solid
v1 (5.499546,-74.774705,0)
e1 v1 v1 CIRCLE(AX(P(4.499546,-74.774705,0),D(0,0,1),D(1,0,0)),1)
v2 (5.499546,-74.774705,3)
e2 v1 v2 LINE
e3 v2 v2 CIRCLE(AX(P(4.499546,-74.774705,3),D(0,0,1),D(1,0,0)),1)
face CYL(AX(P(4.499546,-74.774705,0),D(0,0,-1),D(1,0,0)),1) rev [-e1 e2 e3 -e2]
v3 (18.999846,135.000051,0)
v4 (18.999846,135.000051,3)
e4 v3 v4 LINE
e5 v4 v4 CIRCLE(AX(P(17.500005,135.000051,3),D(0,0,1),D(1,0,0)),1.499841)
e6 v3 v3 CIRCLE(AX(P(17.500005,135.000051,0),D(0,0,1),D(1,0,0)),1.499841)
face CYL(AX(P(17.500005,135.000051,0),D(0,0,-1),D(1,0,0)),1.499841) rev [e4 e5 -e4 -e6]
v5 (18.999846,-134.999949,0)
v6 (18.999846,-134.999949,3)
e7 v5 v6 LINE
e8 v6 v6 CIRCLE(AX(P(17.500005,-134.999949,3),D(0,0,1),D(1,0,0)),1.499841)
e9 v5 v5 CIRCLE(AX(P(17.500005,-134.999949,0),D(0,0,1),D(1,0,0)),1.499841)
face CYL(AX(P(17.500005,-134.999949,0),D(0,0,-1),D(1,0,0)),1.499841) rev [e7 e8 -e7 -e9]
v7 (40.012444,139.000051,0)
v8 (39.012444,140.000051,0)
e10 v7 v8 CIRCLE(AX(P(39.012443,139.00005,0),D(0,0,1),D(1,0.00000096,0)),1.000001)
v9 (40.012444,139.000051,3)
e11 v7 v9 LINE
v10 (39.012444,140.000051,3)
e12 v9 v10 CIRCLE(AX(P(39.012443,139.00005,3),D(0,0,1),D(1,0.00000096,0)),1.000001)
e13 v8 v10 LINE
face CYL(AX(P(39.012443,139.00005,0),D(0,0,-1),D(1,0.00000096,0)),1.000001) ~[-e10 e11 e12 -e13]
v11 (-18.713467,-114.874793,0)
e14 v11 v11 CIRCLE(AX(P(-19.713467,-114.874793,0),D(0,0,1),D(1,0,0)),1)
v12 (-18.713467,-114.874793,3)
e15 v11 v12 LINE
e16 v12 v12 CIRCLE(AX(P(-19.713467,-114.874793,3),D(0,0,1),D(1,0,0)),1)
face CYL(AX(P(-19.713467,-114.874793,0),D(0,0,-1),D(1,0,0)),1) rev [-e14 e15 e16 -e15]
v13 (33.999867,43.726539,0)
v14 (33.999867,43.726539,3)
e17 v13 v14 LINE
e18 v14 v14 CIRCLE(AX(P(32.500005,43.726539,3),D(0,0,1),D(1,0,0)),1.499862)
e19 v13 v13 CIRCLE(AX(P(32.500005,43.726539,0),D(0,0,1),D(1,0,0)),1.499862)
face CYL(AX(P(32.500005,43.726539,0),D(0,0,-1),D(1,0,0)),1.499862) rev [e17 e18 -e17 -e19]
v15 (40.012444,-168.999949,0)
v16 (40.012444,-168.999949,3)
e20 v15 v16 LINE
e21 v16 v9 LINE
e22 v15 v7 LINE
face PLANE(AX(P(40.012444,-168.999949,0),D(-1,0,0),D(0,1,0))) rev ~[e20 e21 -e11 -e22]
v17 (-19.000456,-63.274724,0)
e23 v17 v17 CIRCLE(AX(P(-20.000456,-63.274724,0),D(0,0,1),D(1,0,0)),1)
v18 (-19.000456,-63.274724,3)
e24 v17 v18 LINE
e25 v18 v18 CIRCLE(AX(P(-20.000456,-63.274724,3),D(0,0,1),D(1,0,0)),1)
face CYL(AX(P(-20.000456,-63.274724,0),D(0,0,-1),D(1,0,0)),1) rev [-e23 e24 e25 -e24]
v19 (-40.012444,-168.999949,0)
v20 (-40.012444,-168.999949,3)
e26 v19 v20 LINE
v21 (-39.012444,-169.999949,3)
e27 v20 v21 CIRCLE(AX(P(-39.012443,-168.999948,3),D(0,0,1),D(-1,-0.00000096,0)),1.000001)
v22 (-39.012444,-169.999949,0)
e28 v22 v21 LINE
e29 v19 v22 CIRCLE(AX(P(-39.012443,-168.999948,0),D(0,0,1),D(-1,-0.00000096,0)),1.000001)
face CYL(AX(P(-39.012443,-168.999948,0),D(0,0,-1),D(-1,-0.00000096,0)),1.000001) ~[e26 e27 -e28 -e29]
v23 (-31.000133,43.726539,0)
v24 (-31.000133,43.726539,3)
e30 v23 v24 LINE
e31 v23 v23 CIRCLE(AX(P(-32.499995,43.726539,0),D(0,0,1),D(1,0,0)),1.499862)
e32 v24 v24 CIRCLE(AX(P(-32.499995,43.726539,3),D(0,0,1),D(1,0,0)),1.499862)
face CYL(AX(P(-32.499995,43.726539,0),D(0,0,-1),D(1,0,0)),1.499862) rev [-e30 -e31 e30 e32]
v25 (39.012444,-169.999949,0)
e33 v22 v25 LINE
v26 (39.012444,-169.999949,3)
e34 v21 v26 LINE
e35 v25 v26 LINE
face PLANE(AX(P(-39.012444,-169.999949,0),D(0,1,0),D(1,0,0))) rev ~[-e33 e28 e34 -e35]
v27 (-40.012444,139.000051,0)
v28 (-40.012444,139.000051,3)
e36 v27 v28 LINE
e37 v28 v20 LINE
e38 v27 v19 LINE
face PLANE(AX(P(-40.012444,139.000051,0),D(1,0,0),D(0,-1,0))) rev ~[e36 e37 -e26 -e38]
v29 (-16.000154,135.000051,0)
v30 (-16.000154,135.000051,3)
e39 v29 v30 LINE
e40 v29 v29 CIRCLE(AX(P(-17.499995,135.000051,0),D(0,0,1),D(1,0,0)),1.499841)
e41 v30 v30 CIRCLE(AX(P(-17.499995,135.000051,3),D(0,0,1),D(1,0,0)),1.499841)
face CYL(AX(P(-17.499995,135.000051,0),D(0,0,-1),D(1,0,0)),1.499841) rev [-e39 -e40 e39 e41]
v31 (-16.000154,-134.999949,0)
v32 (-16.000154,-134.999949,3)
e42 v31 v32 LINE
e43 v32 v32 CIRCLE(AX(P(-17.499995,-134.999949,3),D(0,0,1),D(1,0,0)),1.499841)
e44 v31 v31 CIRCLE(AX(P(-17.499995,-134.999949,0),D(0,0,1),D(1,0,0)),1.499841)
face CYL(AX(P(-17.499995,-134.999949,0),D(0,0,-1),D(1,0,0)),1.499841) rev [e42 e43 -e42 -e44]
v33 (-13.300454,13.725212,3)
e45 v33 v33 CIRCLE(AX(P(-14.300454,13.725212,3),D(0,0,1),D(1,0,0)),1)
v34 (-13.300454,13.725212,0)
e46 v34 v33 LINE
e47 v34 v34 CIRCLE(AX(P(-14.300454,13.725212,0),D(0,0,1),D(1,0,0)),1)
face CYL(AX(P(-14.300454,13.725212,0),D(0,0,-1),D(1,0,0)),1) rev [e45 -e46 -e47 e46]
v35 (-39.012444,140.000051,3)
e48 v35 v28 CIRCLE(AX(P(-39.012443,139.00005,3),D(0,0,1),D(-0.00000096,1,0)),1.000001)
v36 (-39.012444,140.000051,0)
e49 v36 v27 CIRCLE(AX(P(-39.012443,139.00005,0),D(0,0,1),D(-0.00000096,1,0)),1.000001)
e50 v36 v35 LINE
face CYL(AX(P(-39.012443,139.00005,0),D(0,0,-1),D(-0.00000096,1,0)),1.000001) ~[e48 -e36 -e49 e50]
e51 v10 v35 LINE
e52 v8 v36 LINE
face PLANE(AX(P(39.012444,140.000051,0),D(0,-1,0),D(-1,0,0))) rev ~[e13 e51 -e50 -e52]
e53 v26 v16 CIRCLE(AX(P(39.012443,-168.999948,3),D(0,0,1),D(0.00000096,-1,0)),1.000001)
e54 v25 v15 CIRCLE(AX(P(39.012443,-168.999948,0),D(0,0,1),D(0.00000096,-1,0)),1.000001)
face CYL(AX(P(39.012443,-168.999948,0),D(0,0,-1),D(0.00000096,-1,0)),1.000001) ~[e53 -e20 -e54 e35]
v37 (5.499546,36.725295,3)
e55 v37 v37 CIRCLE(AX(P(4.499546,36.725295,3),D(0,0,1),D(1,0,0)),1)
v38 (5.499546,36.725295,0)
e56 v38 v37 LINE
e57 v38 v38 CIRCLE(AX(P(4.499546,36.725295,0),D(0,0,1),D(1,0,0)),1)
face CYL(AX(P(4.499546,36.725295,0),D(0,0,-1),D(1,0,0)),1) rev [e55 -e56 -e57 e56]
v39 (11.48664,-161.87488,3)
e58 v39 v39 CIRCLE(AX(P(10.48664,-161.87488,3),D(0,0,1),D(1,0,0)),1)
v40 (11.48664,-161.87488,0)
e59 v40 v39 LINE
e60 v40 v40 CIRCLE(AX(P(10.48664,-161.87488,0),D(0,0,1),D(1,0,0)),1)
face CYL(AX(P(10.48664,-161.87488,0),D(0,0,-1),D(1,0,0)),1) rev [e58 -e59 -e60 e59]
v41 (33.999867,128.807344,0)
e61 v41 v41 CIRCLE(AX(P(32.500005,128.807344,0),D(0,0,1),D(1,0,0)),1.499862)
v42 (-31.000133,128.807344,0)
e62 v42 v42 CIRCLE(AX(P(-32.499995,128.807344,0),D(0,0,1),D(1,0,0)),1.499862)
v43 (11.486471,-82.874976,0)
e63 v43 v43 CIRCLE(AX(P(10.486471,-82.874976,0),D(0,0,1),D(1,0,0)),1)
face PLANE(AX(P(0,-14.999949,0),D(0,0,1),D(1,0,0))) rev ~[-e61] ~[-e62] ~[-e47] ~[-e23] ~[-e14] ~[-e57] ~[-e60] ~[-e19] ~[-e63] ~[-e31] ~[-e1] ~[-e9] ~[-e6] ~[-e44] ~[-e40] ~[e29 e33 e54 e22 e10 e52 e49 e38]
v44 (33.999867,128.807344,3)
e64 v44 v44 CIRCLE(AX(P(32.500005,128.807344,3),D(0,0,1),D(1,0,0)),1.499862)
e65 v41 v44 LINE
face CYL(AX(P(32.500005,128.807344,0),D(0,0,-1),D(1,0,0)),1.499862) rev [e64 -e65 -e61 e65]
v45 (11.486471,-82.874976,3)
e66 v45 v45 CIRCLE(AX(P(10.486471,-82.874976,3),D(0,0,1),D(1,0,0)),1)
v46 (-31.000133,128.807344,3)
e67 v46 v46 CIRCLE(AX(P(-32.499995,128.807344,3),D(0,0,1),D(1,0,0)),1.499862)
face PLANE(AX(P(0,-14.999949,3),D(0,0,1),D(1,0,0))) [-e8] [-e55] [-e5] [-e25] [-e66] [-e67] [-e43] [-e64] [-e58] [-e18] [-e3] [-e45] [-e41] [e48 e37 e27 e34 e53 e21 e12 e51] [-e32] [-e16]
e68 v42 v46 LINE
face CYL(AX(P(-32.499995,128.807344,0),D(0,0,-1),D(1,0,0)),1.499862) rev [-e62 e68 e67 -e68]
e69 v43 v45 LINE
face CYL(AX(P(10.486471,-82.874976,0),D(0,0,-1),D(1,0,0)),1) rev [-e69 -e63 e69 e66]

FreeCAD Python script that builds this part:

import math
import FreeCAD as App
import Part
import Sketcher
from FreeCAD import Vector

doc = App.newDocument("Part")
params = doc.addObject("Spreadsheet::Sheet", "Params")
for row, (alias, value) in enumerate([
    ("sketch1_diameter", "2 mm"),
    ("sketch1_height", "308 mm"),
    ("pad1_length", "3 mm"),
], start=1):
    params.set(f"A{row}", alias)
    params.set(f"B{row}", "=" + value)
    params.setAlias(f"B{row}", alias)

body = doc.addObject("PartDesign::Body", "Body")

# Sketch on XY plane
sketch1 = doc.addObject("Sketcher::SketchObject", "Sketch")
body.addObject(sketch1)
sketch1.AttachmentSupport = (doc.XY_Plane, [""])
sketch1.MapMode = "FlatFace"
sketch1.addGeometry(Part.ArcOfCircle(Part.Circle(Vector(39.012443, 139.00005, 0), Vector(0, 0, 1), 1.000001), math.radians(0.000055), math.radians(89.999945)), False)
sketch1.addGeometry(Part.LineSegment(Vector(39.012444, 140.000051, 0), Vector(-39.012444, 140.000051, 0)), False)
sketch1.addGeometry(Part.ArcOfCircle(Part.Circle(Vector(-39.012443, 139.00005, 0), Vector(0, 0, 1), 1.000001), math.radians(90.000055), math.radians(179.999945)), False)
sketch1.addGeometry(Part.LineSegment(Vector(-40.012444, 139.000051, 0), Vector(-40.012444, -168.999949, 0)), False)
sketch1.addGeometry(Part.ArcOfCircle(Part.Circle(Vector(-39.012443, -168.999948, 0), Vector(0, 0, 1), 1.000001), math.radians(-179.999945), math.radians(-90.000055)), False)
sketch1.addGeometry(Part.LineSegment(Vector(-39.012444, -169.999949, 0), Vector(39.012444, -169.999949, 0)), False)
sketch1.addGeometry(Part.ArcOfCircle(Part.Circle(Vector(39.012443, -168.999948, 0), Vector(0, 0, 1), 1.000001), math.radians(-89.999945), math.radians(-0.000055)), False)
sketch1.addGeometry(Part.LineSegment(Vector(40.012444, -168.999949, 0), Vector(40.012444, 139.000051, 0)), False)
sketch1.addGeometry(Part.Circle(Vector(-17.499995, -134.999949, 0), Vector(0, 0, 1), 1.499841), False)
sketch1.addGeometry(Part.Circle(Vector(-19.713467, -114.874793, 0), Vector(0, 0, 1), 1), False)
sketch1.addGeometry(Part.Circle(Vector(-20.000456, -63.274724, 0), Vector(0, 0, 1), 1), False)
sketch1.addGeometry(Part.Circle(Vector(10.48664, -161.87488, 0), Vector(0, 0, 1), 1), False)
sketch1.addGeometry(Part.Circle(Vector(17.500005, -134.999949, 0), Vector(0, 0, 1), 1.499841), False)
sketch1.addGeometry(Part.Circle(Vector(4.499546, -74.774705, 0), Vector(0, 0, 1), 1), False)
sketch1.addGeometry(Part.Circle(Vector(10.486471, -82.874976, 0), Vector(0, 0, 1), 1), False)
sketch1.addGeometry(Part.Circle(Vector(-32.499995, 43.726539, 0), Vector(0, 0, 1), 1.499862), False)
sketch1.addGeometry(Part.Circle(Vector(-14.300454, 13.725212, 0), Vector(0, 0, 1), 1), False)
sketch1.addGeometry(Part.Circle(Vector(-32.499995, 128.807344, 0), Vector(0, 0, 1), 1.499862), False)
sketch1.addGeometry(Part.Circle(Vector(-17.499995, 135.000051, 0), Vector(0, 0, 1), 1.499841), False)
sketch1.addGeometry(Part.Circle(Vector(4.499546, 36.725295, 0), Vector(0, 0, 1), 1), False)
sketch1.addGeometry(Part.Circle(Vector(32.500005, 43.726539, 0), Vector(0, 0, 1), 1.499862), False)
sketch1.addGeometry(Part.Circle(Vector(17.500005, 135.000051, 0), Vector(0, 0, 1), 1.499841), False)
sketch1.addGeometry(Part.Circle(Vector(32.500005, 128.807344, 0), Vector(0, 0, 1), 1.499862), False)
sketch1.addConstraint(Sketcher.Constraint("Tangent", 0, 2, 1, 1))
sketch1.addConstraint(Sketcher.Constraint("Tangent", 1, 2, 2, 1))
sketch1.addConstraint(Sketcher.Constraint("Tangent", 2, 2, 3, 1))
sketch1.addConstraint(Sketcher.Constraint("Tangent", 3, 2, 4, 1))
sketch1.addConstraint(Sketcher.Constraint("Tangent", 4, 2, 5, 1))
sketch1.addConstraint(Sketcher.Constraint("Tangent", 5, 2, 6, 1))
sketch1.addConstraint(Sketcher.Constraint("Tangent", 6, 2, 7, 1))
sketch1.addConstraint(Sketcher.Constraint("Tangent", 7, 2, 0, 1))
sketch1.addConstraint(Sketcher.Constraint("Horizontal", 1))
sketch1.addConstraint(Sketcher.Constraint("Vertical", 3))
sketch1.addConstraint(Sketcher.Constraint("Horizontal", 5))
sketch1.addConstraint(Sketcher.Constraint("Vertical", 7))
sketch1.addConstraint(Sketcher.Constraint("Equal", 0, 2))
sketch1.addConstraint(Sketcher.Constraint("Equal", 2, 4))
sketch1.addConstraint(Sketcher.Constraint("Equal", 4, 6))
sketch1.addConstraint(Sketcher.Constraint("Equal", 6, 9))
sketch1.addConstraint(Sketcher.Constraint("Equal", 9, 10))
sketch1.addConstraint(Sketcher.Constraint("Equal", 10, 11))
sketch1.addConstraint(Sketcher.Constraint("Equal", 8, 12))
sketch1.addConstraint(Sketcher.Constraint("Equal", 11, 13))
sketch1.addConstraint(Sketcher.Constraint("Equal", 13, 14))
sketch1.addConstraint(Sketcher.Constraint("Equal", 14, 16))
sketch1.addConstraint(Sketcher.Constraint("Equal", 15, 17))
sketch1.addConstraint(Sketcher.Constraint("Equal", 12, 18))
sketch1.addConstraint(Sketcher.Constraint("Equal", 16, 19))
sketch1.addConstraint(Sketcher.Constraint("Equal", 17, 20))
sketch1.addConstraint(Sketcher.Constraint("Equal", 18, 21))
sketch1.addConstraint(Sketcher.Constraint("Equal", 20, 22))
sketch1.addConstraint(Sketcher.Constraint("Horizontal", 8, 3, 12, 3))
sketch1.addConstraint(Sketcher.Constraint("Horizontal", 15, 3, 20, 3))
sketch1.addConstraint(Sketcher.Constraint("Horizontal", 18, 3, 21, 3))
sketch1.addConstraint(Sketcher.Constraint("Horizontal", 17, 3, 22, 3))
sketch1.addConstraint(Sketcher.Constraint("Vertical", 15, 3, 17, 3))
sketch1.addConstraint(Sketcher.Constraint("Vertical", 8, 3, 18, 3))
sketch1.addConstraint(Sketcher.Constraint("Vertical", 13, 3, 19, 3))
sketch1.addConstraint(Sketcher.Constraint("Vertical", 12, 3, 21, 3))
sketch1.addConstraint(Sketcher.Constraint("Vertical", 20, 3, 22, 3))
sketch1.addConstraint(Sketcher.Constraint("Diameter", 9, 2.0))
sketch1.addConstraint(Sketcher.Constraint("DistanceY", 3, 2, 3, 1, 308.0))
sketch1.addConstraint(Sketcher.Constraint("DistanceY", 4, 3, 8, 3, 33.999999))
sketch1.addConstraint(Sketcher.Constraint("DistanceX", 8, 3, 12, 3, 35.0))
sketch1.addConstraint(Sketcher.Constraint("DistanceX", 17, 3, 18, 3, 15.0))
sketch1.addConstraint(Sketcher.Constraint("DistanceY", 18, 3, 2, 3, 3.999999))
sketch1.addConstraint(Sketcher.Constraint("DistanceX", 15, 3, 20, 3, 65.0))
sketch1.addConstraint(Sketcher.Constraint("DistanceX", 10, 3, 13, 3, 24.500002))
sketch1.addConstraint(Sketcher.Constraint("DistanceX", 10, 3, 16, 3, 5.700002))
sketch1.addConstraint(Sketcher.Constraint("Diameter", 8, 2.999682))
sketch1.addConstraint(Sketcher.Constraint("Diameter", 15, 2.999724))
sketch1.addConstraint(Sketcher.Constraint("DistanceX", 1, 2, 1, 1, 78.024888))
sketch1.addConstraint(Sketcher.Constraint("DistanceX", 10, 3, 6, 3, 59.012899))
sketch1.addConstraint(Sketcher.Constraint("DistanceY", -1, 1, 0, 3, 139.00005))
sketch1.addConstraint(Sketcher.Constraint("DistanceX", -1, 1, 11, 3, 10.48664))
sketch1.addConstraint(Sketcher.Constraint("DistanceY", 11, 3, -1, 1, 161.87488))
sketch1.addConstraint(Sketcher.Constraint("DistanceX", -1, 1, 14, 3, 10.486471))
sketch1.addConstraint(Sketcher.Constraint("DistanceY", -1, 1, 15, 3, 43.726539))
sketch1.addConstraint(Sketcher.Constraint("DistanceX", 4, 3, 8, 3, 21.512448))
sketch1.addConstraint(Sketcher.Constraint("DistanceX", 9, 3, 6, 3, 58.72591))
sketch1.addConstraint(Sketcher.Constraint("DistanceY", 9, 3, 10, 3, 51.600069))
sketch1.addConstraint(Sketcher.Constraint("DistanceY", 13, 3, 10, 3, 11.499981))
sketch1.addConstraint(Sketcher.Constraint("DistanceY", 14, 3, 13, 3, 8.100271))
sketch1.addConstraint(Sketcher.Constraint("DistanceX", 9, 3, 14, 3, 30.199938))
sketch1.addConstraint(Sketcher.Constraint("DistanceY", 14, 3, 16, 3, 96.600188))
sketch1.addConstraint(Sketcher.Constraint("DistanceY", 16, 3, 2, 3, 125.274838))
sketch1.addConstraint(Sketcher.Constraint("DistanceY", 16, 3, 17, 3, 115.082132))
sketch1.addConstraint(Sketcher.Constraint("DistanceY", 19, 3, 17, 3, 92.082049))
sketch1.setExpression("Constraints[37]", "Params.sketch1_diameter")
sketch1.setExpression("Constraints[38]", "Params.sketch1_height")
pad1 = doc.addObject("PartDesign::Pad", "Pad")
body.addObject(pad1)
pad1.Profile = sketch1
pad1.setExpression("Length", "Params.pad1_length")

doc.recompute()
